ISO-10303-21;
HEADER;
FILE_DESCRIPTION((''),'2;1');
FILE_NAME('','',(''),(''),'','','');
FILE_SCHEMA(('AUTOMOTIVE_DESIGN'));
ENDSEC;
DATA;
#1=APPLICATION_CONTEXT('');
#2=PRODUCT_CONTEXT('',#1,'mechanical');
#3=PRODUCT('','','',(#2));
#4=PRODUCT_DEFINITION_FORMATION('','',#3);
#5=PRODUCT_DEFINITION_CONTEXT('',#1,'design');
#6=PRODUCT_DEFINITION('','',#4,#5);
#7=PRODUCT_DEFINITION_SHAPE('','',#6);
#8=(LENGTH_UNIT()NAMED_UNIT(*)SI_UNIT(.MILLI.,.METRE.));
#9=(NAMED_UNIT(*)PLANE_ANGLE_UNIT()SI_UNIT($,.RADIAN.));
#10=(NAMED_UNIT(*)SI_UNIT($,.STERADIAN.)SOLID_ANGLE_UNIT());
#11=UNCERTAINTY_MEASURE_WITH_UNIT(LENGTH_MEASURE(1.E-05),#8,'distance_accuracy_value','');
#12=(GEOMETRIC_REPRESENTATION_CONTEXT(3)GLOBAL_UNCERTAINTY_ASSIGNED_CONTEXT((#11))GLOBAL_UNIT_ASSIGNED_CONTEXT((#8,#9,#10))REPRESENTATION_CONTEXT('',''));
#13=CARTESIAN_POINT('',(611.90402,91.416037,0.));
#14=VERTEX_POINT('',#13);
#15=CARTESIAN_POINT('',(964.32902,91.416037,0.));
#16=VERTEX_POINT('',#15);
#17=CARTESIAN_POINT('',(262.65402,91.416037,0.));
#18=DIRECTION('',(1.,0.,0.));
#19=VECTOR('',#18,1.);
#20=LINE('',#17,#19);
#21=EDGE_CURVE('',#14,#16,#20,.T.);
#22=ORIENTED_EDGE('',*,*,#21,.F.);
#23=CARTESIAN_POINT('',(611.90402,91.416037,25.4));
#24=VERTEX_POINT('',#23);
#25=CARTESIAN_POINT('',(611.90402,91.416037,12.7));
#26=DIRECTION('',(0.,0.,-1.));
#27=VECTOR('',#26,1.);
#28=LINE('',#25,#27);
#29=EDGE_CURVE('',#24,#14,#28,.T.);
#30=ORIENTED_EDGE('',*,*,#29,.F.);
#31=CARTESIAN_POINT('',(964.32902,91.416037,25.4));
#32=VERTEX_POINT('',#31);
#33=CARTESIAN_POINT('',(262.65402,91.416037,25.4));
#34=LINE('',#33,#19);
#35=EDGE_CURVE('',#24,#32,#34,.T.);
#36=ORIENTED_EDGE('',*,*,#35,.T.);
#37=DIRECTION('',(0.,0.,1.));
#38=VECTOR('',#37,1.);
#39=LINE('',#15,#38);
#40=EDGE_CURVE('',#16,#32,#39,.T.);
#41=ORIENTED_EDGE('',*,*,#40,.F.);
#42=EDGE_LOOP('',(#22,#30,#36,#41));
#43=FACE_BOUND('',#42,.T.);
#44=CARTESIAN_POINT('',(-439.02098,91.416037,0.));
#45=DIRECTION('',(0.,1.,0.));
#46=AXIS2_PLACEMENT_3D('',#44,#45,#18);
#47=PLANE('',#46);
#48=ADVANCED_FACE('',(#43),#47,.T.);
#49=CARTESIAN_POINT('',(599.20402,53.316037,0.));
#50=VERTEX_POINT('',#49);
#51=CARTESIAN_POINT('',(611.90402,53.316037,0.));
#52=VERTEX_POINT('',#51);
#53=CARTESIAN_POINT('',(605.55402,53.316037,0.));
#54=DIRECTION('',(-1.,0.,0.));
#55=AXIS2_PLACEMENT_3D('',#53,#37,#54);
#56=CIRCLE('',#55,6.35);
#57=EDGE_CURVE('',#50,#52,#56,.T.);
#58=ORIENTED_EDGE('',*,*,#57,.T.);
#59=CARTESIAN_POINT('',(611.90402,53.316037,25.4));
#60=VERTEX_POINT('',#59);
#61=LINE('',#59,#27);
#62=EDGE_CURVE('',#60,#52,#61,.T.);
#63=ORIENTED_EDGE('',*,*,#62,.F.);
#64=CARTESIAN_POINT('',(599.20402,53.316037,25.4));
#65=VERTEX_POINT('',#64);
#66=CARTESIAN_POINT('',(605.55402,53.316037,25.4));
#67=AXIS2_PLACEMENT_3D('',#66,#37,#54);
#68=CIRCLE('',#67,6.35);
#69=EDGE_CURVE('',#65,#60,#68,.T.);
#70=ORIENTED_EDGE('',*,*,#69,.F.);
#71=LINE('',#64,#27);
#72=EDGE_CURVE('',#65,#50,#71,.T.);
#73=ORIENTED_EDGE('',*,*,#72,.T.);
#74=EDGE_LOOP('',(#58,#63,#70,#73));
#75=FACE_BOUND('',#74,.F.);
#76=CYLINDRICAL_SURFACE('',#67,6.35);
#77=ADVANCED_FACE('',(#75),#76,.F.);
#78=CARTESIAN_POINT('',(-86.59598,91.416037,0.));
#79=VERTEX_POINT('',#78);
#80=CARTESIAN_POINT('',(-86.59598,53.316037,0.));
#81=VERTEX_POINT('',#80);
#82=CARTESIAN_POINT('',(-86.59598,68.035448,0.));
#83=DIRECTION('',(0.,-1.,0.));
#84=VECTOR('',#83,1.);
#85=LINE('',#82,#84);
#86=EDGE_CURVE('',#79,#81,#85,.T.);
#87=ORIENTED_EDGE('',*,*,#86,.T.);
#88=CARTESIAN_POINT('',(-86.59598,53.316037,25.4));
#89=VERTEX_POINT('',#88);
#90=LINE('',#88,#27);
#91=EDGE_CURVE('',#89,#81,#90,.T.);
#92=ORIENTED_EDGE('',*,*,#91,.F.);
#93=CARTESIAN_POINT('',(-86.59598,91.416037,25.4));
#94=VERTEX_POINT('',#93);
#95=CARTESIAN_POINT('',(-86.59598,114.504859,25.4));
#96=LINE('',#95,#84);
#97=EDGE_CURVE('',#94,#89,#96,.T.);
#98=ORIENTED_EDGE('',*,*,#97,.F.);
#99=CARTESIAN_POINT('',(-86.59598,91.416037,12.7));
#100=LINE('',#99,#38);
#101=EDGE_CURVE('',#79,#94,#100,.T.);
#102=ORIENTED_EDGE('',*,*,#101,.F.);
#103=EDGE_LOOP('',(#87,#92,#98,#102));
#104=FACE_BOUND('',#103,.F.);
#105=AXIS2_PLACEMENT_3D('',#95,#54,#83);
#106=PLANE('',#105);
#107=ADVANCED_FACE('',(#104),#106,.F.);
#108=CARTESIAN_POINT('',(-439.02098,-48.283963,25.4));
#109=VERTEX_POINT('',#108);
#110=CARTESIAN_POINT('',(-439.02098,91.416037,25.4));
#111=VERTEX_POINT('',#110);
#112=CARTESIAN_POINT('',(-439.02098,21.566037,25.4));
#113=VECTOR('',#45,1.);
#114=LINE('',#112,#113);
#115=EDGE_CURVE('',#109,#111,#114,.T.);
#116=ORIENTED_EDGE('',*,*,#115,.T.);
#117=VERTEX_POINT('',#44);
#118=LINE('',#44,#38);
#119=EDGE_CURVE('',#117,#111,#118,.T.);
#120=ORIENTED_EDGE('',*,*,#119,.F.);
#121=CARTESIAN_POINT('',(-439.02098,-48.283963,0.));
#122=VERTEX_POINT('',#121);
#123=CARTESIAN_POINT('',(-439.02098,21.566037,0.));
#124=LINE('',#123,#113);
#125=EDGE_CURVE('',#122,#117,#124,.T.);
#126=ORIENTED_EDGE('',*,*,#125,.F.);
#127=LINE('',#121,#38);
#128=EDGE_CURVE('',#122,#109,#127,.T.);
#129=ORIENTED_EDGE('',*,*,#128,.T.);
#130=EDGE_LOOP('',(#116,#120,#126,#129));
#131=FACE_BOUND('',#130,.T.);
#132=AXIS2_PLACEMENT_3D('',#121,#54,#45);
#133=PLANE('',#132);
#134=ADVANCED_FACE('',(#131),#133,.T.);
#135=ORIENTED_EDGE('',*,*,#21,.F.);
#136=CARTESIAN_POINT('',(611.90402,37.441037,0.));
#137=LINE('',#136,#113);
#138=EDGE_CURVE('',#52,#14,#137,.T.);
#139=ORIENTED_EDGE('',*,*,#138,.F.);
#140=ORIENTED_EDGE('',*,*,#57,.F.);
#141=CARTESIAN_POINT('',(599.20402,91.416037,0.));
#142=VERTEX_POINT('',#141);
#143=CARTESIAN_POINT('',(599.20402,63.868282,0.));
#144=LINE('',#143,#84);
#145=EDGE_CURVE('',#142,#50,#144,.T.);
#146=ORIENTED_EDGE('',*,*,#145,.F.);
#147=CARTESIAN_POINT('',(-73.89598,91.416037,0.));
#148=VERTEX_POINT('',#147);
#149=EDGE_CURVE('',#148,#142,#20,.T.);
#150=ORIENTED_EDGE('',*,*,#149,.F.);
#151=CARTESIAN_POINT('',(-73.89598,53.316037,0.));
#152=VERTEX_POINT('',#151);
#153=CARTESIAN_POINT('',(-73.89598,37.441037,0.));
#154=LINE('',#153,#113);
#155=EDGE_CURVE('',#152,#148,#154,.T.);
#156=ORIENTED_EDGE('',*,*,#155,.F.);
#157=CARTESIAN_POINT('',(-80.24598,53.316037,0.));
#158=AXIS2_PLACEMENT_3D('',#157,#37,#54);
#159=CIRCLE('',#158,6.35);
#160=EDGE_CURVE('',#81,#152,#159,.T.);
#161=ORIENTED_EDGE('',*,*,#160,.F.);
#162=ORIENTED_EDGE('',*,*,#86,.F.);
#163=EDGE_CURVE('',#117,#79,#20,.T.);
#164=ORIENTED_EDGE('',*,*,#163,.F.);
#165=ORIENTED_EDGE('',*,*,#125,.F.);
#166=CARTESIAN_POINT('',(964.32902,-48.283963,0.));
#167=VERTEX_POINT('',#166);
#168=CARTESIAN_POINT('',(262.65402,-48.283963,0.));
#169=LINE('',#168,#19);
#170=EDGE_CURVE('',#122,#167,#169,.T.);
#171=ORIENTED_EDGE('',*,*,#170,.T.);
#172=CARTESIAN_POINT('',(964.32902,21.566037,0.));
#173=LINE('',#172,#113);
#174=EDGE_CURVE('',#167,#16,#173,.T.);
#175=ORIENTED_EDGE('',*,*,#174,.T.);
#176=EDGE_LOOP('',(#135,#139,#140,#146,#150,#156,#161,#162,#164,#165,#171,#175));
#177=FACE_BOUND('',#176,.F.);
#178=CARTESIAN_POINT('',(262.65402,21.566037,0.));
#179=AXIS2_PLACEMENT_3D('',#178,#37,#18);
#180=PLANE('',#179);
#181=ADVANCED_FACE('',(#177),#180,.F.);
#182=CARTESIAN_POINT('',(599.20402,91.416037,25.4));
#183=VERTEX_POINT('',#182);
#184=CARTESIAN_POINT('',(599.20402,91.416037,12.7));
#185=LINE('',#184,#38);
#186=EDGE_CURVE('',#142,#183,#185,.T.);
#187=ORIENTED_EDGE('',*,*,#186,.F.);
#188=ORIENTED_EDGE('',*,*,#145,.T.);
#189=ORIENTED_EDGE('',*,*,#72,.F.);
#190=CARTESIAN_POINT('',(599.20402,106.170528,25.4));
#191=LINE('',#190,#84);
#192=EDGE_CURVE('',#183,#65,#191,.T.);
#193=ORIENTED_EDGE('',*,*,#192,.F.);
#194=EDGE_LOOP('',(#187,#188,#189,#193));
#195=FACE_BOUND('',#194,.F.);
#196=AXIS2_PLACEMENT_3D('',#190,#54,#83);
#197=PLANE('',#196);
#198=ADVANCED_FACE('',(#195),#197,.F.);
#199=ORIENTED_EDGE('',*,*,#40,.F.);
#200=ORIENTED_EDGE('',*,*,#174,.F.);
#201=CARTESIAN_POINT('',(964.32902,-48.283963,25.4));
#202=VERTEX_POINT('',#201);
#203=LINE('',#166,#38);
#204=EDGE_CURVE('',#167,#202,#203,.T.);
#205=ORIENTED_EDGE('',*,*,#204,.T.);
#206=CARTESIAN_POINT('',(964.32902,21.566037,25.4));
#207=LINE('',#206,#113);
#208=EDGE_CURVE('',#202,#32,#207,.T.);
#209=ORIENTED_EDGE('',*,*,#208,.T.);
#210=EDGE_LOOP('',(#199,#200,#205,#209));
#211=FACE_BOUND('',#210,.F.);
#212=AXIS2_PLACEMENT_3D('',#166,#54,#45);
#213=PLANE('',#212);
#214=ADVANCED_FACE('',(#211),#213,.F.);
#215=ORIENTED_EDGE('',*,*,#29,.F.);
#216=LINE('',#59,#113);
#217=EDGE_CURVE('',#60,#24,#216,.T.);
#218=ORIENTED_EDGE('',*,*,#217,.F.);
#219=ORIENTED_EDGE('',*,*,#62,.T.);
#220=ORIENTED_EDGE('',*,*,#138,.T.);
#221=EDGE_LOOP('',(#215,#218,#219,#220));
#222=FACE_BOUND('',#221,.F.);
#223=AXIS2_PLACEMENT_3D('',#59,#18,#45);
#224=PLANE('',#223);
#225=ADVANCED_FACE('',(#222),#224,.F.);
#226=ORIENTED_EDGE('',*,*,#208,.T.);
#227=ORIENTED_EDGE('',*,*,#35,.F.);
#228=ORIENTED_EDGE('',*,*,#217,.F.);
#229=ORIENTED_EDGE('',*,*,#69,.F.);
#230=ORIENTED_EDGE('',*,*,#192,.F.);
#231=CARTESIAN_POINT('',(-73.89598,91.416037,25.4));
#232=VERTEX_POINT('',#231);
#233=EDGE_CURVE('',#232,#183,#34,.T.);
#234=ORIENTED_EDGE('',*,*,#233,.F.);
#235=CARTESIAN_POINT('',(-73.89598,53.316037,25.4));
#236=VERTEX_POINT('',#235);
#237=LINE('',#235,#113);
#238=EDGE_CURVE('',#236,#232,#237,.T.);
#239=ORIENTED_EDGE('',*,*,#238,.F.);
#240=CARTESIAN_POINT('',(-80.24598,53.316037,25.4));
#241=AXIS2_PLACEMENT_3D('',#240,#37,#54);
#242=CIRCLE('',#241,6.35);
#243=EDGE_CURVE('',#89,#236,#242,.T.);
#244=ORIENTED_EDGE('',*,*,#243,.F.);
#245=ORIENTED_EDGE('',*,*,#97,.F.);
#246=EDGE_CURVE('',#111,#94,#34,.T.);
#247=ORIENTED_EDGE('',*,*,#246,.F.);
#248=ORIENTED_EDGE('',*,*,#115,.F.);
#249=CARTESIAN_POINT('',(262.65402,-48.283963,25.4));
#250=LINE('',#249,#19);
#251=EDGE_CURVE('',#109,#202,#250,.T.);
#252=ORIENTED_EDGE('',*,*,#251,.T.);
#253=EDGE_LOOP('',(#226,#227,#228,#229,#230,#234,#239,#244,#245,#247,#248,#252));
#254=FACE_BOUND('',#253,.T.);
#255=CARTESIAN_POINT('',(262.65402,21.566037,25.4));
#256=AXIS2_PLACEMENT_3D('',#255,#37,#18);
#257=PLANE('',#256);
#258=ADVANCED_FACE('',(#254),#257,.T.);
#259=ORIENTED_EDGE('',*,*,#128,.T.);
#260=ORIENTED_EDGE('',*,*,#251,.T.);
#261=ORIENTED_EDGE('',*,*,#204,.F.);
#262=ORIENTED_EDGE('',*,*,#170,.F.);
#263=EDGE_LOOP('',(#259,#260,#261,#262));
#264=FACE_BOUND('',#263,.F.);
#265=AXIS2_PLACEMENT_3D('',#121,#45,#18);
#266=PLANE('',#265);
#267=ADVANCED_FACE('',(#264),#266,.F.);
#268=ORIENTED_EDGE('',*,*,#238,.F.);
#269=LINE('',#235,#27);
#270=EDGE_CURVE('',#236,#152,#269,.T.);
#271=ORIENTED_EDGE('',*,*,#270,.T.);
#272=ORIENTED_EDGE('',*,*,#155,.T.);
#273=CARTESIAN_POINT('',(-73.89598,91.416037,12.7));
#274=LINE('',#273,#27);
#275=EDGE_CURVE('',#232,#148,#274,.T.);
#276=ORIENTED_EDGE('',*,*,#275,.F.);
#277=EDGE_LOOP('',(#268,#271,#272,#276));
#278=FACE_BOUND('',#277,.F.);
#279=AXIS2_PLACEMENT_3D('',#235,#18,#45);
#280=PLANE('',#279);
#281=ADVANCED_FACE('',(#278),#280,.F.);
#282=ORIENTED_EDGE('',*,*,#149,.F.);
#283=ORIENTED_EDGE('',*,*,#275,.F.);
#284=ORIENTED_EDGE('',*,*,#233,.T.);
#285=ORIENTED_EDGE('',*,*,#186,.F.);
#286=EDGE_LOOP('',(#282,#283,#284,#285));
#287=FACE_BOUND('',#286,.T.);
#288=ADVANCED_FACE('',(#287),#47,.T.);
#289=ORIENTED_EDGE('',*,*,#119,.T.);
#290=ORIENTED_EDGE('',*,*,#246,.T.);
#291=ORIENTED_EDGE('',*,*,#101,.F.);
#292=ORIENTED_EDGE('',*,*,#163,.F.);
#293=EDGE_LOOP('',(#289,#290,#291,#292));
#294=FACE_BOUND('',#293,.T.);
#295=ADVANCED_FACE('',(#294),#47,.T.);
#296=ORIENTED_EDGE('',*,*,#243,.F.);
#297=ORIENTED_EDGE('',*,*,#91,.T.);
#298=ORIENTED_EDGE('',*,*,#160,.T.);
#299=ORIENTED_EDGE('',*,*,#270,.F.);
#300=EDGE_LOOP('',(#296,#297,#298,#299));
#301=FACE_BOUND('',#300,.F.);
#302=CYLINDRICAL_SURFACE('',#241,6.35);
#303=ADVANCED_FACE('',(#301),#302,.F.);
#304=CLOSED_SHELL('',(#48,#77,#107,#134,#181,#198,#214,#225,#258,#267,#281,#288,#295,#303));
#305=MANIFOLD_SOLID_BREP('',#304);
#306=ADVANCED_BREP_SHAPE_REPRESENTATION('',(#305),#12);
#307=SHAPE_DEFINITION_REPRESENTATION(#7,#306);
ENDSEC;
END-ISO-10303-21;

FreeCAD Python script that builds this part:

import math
import FreeCAD as App
import Part
import Sketcher

V = App.Vector
Q = App.Units.Quantity


def add_polygon(sketch, points):
    """Adds a closed chain of lines whose ends are joined by coincident constraints."""
    first, n = sketch.GeometryCount, len(points)
    for a, b in zip(points, points[1:] + points[:1]):
        sketch.addGeometry(Part.LineSegment(App.Vector(*a, 0), App.Vector(*b, 0)), False)
    for i in range(n):
        sketch.addConstraint(Sketcher.Constraint("Coincident", first + i, 2, first + (i + 1) % n, 1))

doc = App.newDocument("Part")
body = doc.addObject("PartDesign::Body", "Body")

# Sketch on XY plane
sketch1 = body.newObject("Sketcher::SketchObject", "Sketch")
sketch1.AttachmentSupport = (doc.getObject("XY_Plane"), [""])
sketch1.MapMode = "FlatFace"
add_polygon(sketch1, [(-439, 91), (-439, -48), (964, -48), (964, 91)])  # lines 0-3
sketch1.addConstraint([
    Sketcher.Constraint("Vertical", 0),
    Sketcher.Constraint("Horizontal", 1),
    Sketcher.Constraint("Vertical", 2),
    Sketcher.Constraint("Horizontal", 3),
    Sketcher.Constraint("DistanceY", 0, 2, 0, 1, Q("5.5 in")),
    Sketcher.Constraint("DistanceX", 1, 1, 1, 2, Q("55.25 in")),
    Sketcher.Constraint("DistanceX", 0, 2, -1, 1, Q("439.02098 mm")),
    Sketcher.Constraint("DistanceY", 0, 2, -1, 1, Q("48.283963 mm")),
])
pad1 = body.newObject("PartDesign::Pad", "Pad")
pad1.Profile = sketch1
pad1.Length = Q("1 in")

# Sketch on XY plane
sketch2 = body.newObject("Sketcher::SketchObject", "Sketch001")
sketch2.AttachmentSupport = (doc.getObject("XY_Plane"), [""])
sketch2.MapMode = "FlatFace"
sketch2.AttachmentOffset = App.Placement(V(0, 0, 1 * 25.4), App.Rotation())
sketch2.addGeometry([
    Part.LineSegment(V(599, 106, 0), V(599, 53, 0)),  # 0
    Part.ArcOfCircle(Part.Circle(V(606, 53, 0), V(0, 0, 1), 6), math.radians(180), math.radians(360)),  # 1
    Part.LineSegment(V(612, 53, 0), V(612, 113, 0)),  # 2
    Part.LineSegment(V(612, 113, 0), V(599, 106, 0)),  # 3
    Part.LineSegment(V(-87, 115, 0), V(-87, 53, 0)),  # 4
    Part.ArcOfCircle(Part.Circle(V(-80, 53, 0), V(0, 0, 1), 6), math.radians(180), math.radians(360)),  # 5
    Part.LineSegment(V(-74, 53, 0), V(-74, 120, 0)),  # 6
    Part.LineSegment(V(-74, 120, 0), V(-87, 115, 0)),  # 7
], False)
sketch2.addConstraint([
    Sketcher.Constraint("Tangent", 0, 2, 1, 1),
    Sketcher.Constraint("Tangent", 1, 2, 2, 1),
    Sketcher.Constraint("Coincident", 2, 2, 3, 1),
    Sketcher.Constraint("Coincident", 3, 2, 0, 1),
    Sketcher.Constraint("Tangent", 4, 2, 5, 1),
    Sketcher.Constraint("Tangent", 5, 2, 6, 1),
    Sketcher.Constraint("Coincident", 6, 2, 7, 1),
    Sketcher.Constraint("Coincident", 7, 2, 4, 1),
    Sketcher.Constraint("Vertical", 0),
    Sketcher.Constraint("Vertical", 2),
    Sketcher.Constraint("Vertical", 4),
    Sketcher.Constraint("Vertical", 6),
    Sketcher.Constraint("Equal", 1, 5),
    Sketcher.Constraint("Horizontal", 1, 3, 5, 3),
    Sketcher.Constraint("Radius", 1, Q("0.25 in")),
    Sketcher.Constraint("DistanceX", 5, 3, 1, 3, Q("27 in")),
    Sketcher.Constraint("Distance", 3, Q("14.291399 mm")),
    Sketcher.Constraint("DistanceY", 0, 2, 0, 1, Q("52.854491 mm")),
    Sketcher.Constraint("DistanceY", 4, 2, 4, 1, Q("61.188822 mm")),
    Sketcher.Constraint("Distance", 7, Q("13.752551 mm")),
    Sketcher.Constraint("DistanceX", -1, 1, 1, 3, Q("605.55402 mm")),
    Sketcher.Constraint("DistanceY", -1, 1, 3, 2, Q("106.170528 mm")),
])
pocket1 = body.newObject("PartDesign::Pocket", "Pocket")
pocket1.Profile = sketch2
pocket1.Type = "ThroughAll"

doc.recompute()
